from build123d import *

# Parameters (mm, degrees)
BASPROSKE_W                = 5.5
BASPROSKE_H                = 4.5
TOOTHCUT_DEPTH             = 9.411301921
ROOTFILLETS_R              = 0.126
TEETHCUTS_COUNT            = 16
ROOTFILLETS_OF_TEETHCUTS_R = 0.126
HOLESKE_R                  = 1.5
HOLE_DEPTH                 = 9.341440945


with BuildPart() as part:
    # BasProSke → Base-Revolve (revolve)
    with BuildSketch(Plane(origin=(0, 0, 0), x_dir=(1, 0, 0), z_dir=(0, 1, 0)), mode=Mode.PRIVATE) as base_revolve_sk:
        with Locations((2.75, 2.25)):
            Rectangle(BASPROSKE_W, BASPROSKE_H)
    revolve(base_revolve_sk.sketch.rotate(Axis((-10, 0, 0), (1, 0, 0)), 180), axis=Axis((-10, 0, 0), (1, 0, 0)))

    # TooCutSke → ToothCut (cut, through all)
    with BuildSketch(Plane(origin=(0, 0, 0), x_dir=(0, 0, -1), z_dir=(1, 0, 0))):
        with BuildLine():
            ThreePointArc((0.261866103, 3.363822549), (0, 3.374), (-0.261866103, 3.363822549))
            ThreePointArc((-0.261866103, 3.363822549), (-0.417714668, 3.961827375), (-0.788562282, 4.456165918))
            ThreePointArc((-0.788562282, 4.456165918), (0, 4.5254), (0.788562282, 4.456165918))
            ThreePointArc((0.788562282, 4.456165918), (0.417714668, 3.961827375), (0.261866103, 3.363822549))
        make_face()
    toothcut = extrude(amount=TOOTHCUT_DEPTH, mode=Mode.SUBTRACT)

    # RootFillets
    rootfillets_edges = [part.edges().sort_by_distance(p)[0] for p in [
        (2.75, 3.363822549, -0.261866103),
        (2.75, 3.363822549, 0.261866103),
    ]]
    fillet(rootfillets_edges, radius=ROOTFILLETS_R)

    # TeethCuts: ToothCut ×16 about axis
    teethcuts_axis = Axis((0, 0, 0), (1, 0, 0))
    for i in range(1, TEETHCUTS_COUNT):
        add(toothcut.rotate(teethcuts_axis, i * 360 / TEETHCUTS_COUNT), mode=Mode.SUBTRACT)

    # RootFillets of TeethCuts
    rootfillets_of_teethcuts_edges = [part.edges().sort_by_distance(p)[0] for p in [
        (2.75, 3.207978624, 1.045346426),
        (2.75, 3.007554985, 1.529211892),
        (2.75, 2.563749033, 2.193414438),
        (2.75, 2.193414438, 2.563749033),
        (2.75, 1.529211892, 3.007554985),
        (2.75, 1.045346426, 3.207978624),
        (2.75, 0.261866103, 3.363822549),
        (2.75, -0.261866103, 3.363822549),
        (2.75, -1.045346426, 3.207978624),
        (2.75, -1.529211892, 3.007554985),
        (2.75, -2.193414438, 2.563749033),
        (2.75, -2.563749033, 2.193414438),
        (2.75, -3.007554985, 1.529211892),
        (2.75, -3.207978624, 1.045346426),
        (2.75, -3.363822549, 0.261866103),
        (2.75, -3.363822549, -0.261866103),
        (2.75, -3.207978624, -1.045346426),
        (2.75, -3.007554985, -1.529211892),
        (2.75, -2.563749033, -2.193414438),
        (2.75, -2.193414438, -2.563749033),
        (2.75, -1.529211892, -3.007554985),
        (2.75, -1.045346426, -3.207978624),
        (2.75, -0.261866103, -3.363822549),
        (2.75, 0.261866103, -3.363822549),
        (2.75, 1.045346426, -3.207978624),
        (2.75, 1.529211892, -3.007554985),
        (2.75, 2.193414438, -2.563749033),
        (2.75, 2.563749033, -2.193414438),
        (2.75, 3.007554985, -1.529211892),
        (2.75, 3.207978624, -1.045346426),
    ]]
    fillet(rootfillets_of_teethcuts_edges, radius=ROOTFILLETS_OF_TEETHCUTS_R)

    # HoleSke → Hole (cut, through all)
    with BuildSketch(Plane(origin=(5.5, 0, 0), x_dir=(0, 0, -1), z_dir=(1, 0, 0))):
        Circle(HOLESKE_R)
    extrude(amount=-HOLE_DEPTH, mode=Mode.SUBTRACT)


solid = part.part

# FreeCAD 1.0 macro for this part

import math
import FreeCAD as App
import Part
import Sketcher


def edges_at(feature, points):
    """Names of the edges that pass closest to the given points."""
    edges = feature.Shape.Edges
    near = lambda p: min(range(len(edges)), key=lambda i: edges[i].distToShape(Part.Vertex(*p))[0])
    return sorted({f"Edge{near(p) + 1}" for p in points})


def add_polygon(sketch, points):
    """Adds a closed chain of lines whose ends are joined by coincident constraints."""
    first, n = sketch.GeometryCount, len(points)
    for a, b in zip(points, points[1:] + points[:1]):
        sketch.addGeometry(Part.LineSegment(App.Vector(*a, 0), App.Vector(*b, 0)), False)
    for i in range(n):
        sketch.addConstraint(Sketcher.Constraint("Coincident", first + i, 2, first + (i + 1) % n, 1))

doc = App.newDocument("Part")
body = doc.addObject("PartDesign::Body", "Body")

sketch1 = doc.addObject("Sketcher::SketchObject", "Sketch")
body.addObject(sketch1)
sketch1.AttachmentSupport = (doc.XZ_Plane, [""])
sketch1.MapMode = "FlatFace"
add_polygon(sketch1, [(0, -4.5), (0, 0), (5.5, 0), (5.5, -4.5)])
sketch1.addConstraint([
    Sketcher.Constraint("Vertical", 0),
    Sketcher.Constraint("Horizontal", 1),
    Sketcher.Constraint("Vertical", 2),
    Sketcher.Constraint("Horizontal", 3),
    Sketcher.Constraint("Coincident", 0, 2, -1, 1),
    Sketcher.Constraint("DistanceX", 1, 1, 1, 2, 5.5),
    Sketcher.Constraint("DistanceY", 0, 1, 0, 2, 4.5),
])
revolution = doc.addObject("PartDesign::Revolution", "Revolution")
body.addObject(revolution)
revolution.Profile = sketch1
revolution.ReferenceAxis = (sketch1, ["H_Axis"])
revolution.Angle = 360

sketch2 = doc.addObject("Sketcher::SketchObject", "Sketch001")
body.addObject(sketch2)
sketch2.AttachmentSupport = (doc.YZ_Plane, [""])
sketch2.MapMode = "FlatFace"
sketch2.addGeometry([
    Part.ArcOfCircle(Part.Circle(App.Vector(0, 0, 0), App.Vector(0, 0, 1), 3.4), math.radians(-4.45), math.radians(4.45)),
    Part.ArcOfCircle(Part.Circle(App.Vector(3.3, -1.9, 0), App.Vector(0, 0, 1), 1.6), math.radians(42), math.radians(87)),
    Part.ArcOfCircle(Part.Circle(App.Vector(0, 0, 0), App.Vector(0, 0, 1), 4.5), math.radians(-10), math.radians(10)),
    Part.ArcOfCircle(Part.Circle(App.Vector(3.3, 1.9, 0), App.Vector(0, 0, 1), 1.6), math.radians(-87), math.radians(-42)),
], False)
sketch2.addConstraint([
    Sketcher.Constraint("Coincident", 0, 1, 1, 2),
    Sketcher.Constraint("Coincident", 1, 1, 2, 1),
    Sketcher.Constraint("Coincident", 2, 2, 3, 2),
    Sketcher.Constraint("Coincident", 3, 1, 0, 2),
    Sketcher.Constraint("Coincident", 0, 3, -1, 1),
    Sketcher.Constraint("Coincident", 2, 3, -1, 1),
    Sketcher.Constraint("Equal", 1, 3),
    Sketcher.Constraint("Symmetric", 1, 3, 3, 3, -1),
    Sketcher.Constraint("Radius", 1, 1.6),
    Sketcher.Constraint("Radius", 0, 3.374),
    Sketcher.Constraint("Radius", 2, 4.5254),
    Sketcher.Constraint("DistanceY", 1, 3, -1, 1, 1.858929),
    Sketcher.Constraint("DistanceX", 1, 3, 1, 1, 1.18925),
])
pocket1 = doc.addObject("PartDesign::Pocket", "Pocket")
body.addObject(pocket1)
pocket1.Profile = sketch2
pocket1.Type = "ThroughAll"
pocket1.Reversed = True
doc.recompute()

fillet = doc.addObject("PartDesign::Fillet", "Fillet")
body.addObject(fillet)
fillet.Base = (pocket1, edges_at(pocket1, [(2.75, 3.364, -0.262), (2.75, 3.364, 0.262)]))
fillet.Radius = 0.126
doc.recompute()

polarpattern = doc.addObject("PartDesign::PolarPattern", "PolarPattern")
body.addObject(polarpattern)
polarpattern.Originals = [pocket1]
polarpattern.Axis = (doc.X_Axis, [""])
polarpattern.Angle = 360
polarpattern.Occurrences = 16
body.Tip = polarpattern
doc.recompute()

fillet2 = doc.addObject("PartDesign::Fillet", "Fillet001")
body.addObject(fillet2)
fillet2.Base = (polarpattern, edges_at(polarpattern, [
    (2.75, 3.208, 1.045),
    (2.75, 3.008, 1.529),
    (2.75, 2.564, 2.193),
    (2.75, 2.193, 2.564),
    (2.75, 1.529, 3.008),
    (2.75, 1.045, 3.208),
    (2.75, 0.262, 3.364),
    (2.75, -0.262, 3.364),
    (2.75, -1.045, 3.208),
    (2.75, -1.529, 3.008),
    (2.75, -2.193, 2.564),
    (2.75, -2.564, 2.193),
    (2.75, -3.008, 1.529),
    (2.75, -3.208, 1.045),
    (2.75, -3.364, 0.262),
    (2.75, -3.364, -0.262),
    (2.75, -3.208, -1.045),
    (2.75, -3.008, -1.529),
    (2.75, -2.564, -2.193),
    (2.75, -2.193, -2.564),
    (2.75, -1.529, -3.008),
    (2.75, -1.045, -3.208),
    (2.75, -0.262, -3.364),
    (2.75, 0.262, -3.364),
    (2.75, 1.045, -3.208),
    (2.75, 1.529, -3.008),
    (2.75, 2.193, -2.564),
    (2.75, 2.564, -2.193),
    (2.75, 3.008, -1.529),
    (2.75, 3.208, -1.045),
]))
fillet2.Radius = 0.126

sketch3 = doc.addObject("Sketcher::SketchObject", "Sketch002")
body.addObject(sketch3)
sketch3.AttachmentSupport = (doc.YZ_Plane, [""])
sketch3.MapMode = "FlatFace"
sketch3.AttachmentOffset = App.Placement(App.Vector(0, 0, 5.5), App.Rotation())
sketch3.addGeometry(Part.Circle(App.Vector(0, 0, 0), App.Vector(0, 0, 1), 1.5), False)
sketch3.addConstraint([
    Sketcher.Constraint("Coincident", 0, 3, -1, 1),
    Sketcher.Constraint("Diameter", 0, 3.0),
])
pocket2 = doc.addObject("PartDesign::Pocket", "Pocket001")
body.addObject(pocket2)
pocket2.Profile = sketch3
pocket2.Type = "ThroughAll"

doc.recompute()
